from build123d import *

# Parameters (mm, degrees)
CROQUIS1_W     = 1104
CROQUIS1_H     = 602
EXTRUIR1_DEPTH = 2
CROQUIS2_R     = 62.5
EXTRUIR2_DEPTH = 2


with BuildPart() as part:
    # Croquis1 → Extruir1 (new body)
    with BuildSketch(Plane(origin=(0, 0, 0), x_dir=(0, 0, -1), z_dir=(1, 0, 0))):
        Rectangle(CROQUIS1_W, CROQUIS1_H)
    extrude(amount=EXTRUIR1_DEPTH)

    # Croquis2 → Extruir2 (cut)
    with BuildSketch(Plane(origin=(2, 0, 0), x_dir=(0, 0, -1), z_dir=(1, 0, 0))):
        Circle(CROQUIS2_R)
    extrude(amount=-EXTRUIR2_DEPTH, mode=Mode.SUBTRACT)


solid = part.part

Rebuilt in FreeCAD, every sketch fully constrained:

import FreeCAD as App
import Part
import Sketcher

doc = App.newDocument("Part")
params = doc.addObject("Spreadsheet::Sheet", "Params")
for row, (alias, value) in enumerate([
    ("sketch1_width", "602 mm"),
    ("sketch1_height", "1104 mm"),
    ("pad1_length", "2 mm"),
    ("sketch2_diameter", "125 mm"),
    ("pocket1_length", "2 mm"),
], start=1):
    params.set(f"A{row}", alias)
    params.set(f"B{row}", "=" + value)
    params.setAlias(f"B{row}", alias)

body = doc.addObject("PartDesign::Body", "Body")

sketch1 = body.newObject("Sketcher::SketchObject", "Sketch")
sketch1.AttachmentSupport = (doc.getObject("YZ_Plane"), [""])
sketch1.MapMode = "FlatFace"
sketch1.addGeometry(Part.LineSegment(App.Vector(301, 552, 0), App.Vector(-301, 552, 0)), False)
sketch1.addGeometry(Part.LineSegment(App.Vector(-301, 552, 0), App.Vector(-301, -552, 0)), False)
sketch1.addGeometry(Part.LineSegment(App.Vector(-301, -552, 0), App.Vector(301, -552, 0)), False)
sketch1.addGeometry(Part.LineSegment(App.Vector(301, -552, 0), App.Vector(301, 552, 0)), False)
sketch1.addConstraint(Sketcher.Constraint("Coincident", 0, 2, 1, 1))
sketch1.addConstraint(Sketcher.Constraint("Coincident", 1, 2, 2, 1))
sketch1.addConstraint(Sketcher.Constraint("Coincident", 2, 2, 3, 1))
sketch1.addConstraint(Sketcher.Constraint("Coincident", 3, 2, 0, 1))
sketch1.addConstraint(Sketcher.Constraint("Horizontal", 0))
sketch1.addConstraint(Sketcher.Constraint("Vertical", 1))
sketch1.addConstraint(Sketcher.Constraint("Horizontal", 2))
sketch1.addConstraint(Sketcher.Constraint("Vertical", 3))
sketch1.addConstraint(Sketcher.Constraint("Symmetric", 0, 2, 2, 2, -1, 1))
sketch1.addConstraint(Sketcher.Constraint("DistanceX", 0, 2, 0, 1, 602.0))
sketch1.addConstraint(Sketcher.Constraint("DistanceY", 1, 2, 1, 1, 1104.0))
sketch1.setExpression("Constraints[9]", "Params.sketch1_width")
sketch1.setExpression("Constraints[10]", "Params.sketch1_height")
pad1 = body.newObject("PartDesign::Pad", "Pad")
pad1.Profile = sketch1
pad1.setExpression("Length", "Params.pad1_length")

sketch2 = body.newObject("Sketcher::SketchObject", "Sketch001")
sketch2.AttachmentSupport = (doc.getObject("YZ_Plane"), [""])
sketch2.MapMode = "FlatFace"
sketch2.AttachmentOffset = App.Placement(App.Vector(0, 0, 2), App.Rotation())
sketch2.addGeometry(Part.Circle(App.Vector(0, 0, 0), App.Vector(0, 0, 1), 62), False)
sketch2.addConstraint(Sketcher.Constraint("Coincident", 0, 3, -1, 1))
sketch2.addConstraint(Sketcher.Constraint("Diameter", 0, 125.0))
sketch2.setExpression("Constraints[1]", "Params.sketch2_diameter")
pocket1 = body.newObject("PartDesign::Pocket", "Pocket")
pocket1.Profile = sketch2
pocket1.setExpression("Length", "Params.pocket1_length")

doc.recompute()
